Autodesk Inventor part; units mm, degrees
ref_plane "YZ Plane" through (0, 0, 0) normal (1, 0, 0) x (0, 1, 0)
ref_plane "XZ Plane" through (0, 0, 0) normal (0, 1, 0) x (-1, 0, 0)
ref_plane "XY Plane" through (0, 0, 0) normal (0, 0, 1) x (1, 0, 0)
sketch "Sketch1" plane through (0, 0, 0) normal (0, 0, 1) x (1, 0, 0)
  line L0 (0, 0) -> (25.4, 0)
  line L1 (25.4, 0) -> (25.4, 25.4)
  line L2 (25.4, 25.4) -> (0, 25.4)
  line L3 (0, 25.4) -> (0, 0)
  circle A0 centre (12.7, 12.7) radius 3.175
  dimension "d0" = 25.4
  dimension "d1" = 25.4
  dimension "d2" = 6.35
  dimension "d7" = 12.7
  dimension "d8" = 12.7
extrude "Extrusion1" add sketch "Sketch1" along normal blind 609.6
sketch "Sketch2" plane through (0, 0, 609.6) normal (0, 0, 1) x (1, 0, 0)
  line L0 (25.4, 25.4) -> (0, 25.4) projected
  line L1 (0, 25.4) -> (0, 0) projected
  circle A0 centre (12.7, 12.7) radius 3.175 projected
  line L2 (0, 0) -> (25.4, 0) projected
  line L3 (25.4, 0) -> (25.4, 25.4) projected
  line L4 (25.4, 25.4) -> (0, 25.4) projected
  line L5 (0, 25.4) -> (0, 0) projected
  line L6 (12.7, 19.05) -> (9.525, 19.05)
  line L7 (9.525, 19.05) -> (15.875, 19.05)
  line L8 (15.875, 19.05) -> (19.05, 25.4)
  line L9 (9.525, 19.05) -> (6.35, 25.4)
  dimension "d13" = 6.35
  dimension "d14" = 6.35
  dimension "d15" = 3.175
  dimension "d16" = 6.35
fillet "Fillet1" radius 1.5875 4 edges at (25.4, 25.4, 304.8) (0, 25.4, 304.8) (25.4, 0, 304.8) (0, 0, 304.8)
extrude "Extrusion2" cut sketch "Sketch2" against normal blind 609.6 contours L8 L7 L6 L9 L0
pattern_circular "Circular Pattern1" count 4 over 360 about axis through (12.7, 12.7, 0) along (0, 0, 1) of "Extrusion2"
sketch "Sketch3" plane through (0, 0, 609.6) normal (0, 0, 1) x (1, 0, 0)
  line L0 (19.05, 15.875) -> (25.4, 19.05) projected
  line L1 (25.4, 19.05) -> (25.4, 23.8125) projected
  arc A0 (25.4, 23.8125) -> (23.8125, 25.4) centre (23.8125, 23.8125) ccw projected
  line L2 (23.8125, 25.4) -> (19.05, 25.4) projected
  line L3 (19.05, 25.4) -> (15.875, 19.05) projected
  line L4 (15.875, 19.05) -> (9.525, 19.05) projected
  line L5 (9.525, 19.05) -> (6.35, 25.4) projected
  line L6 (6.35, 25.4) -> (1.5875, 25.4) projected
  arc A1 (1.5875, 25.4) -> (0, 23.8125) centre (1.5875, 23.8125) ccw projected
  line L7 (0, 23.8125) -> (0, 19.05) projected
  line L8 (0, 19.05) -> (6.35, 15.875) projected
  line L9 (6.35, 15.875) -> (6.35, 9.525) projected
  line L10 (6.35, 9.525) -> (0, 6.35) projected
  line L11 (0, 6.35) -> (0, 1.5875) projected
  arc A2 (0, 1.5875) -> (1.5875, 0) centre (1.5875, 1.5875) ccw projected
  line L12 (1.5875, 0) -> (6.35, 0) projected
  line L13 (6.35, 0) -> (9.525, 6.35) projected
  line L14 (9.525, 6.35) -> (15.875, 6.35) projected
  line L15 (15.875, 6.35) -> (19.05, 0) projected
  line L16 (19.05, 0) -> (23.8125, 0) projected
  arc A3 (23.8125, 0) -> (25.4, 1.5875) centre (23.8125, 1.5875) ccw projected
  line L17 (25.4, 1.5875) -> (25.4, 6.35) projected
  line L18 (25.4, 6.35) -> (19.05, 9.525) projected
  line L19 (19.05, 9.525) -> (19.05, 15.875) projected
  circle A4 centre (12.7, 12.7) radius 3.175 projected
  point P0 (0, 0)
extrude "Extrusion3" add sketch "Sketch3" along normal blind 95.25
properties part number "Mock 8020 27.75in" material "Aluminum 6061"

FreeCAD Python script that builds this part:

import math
import FreeCAD as App
import Part
import Sketcher
Q = App.Units.Quantity


def edges_at(feature, points):
    """Names of the edges that pass closest to the given points."""
    edges = feature.Shape.Edges
    near = lambda p: min(range(len(edges)), key=lambda i: edges[i].distToShape(Part.Vertex(*p))[0])
    return sorted({f"Edge{near(p) + 1}" for p in points})

doc = App.newDocument("Part")
body = doc.addObject("PartDesign::Body", "Body")

sketch1 = doc.addObject("Sketcher::SketchObject", "Sketch")
body.addObject(sketch1)
sketch1.AttachmentSupport = (doc.XY_Plane, [""])
sketch1.MapMode = "FlatFace"
sketch1.addGeometry([
    Part.LineSegment(App.Vector(0, 25.4, 0), App.Vector(0, 0, 0)),
    Part.LineSegment(App.Vector(0, 0, 0), App.Vector(25.4, 0, 0)),
    Part.LineSegment(App.Vector(25.4, 0, 0), App.Vector(25.4, 25.4, 0)),
    Part.LineSegment(App.Vector(25.4, 25.4, 0), App.Vector(0, 25.4, 0)),
    Part.Circle(App.Vector(12.7, 12.7, 0), App.Vector(0, 0, 1), 3.2),
], False)
sketch1.addConstraint([
    Sketcher.Constraint("Coincident", 0, 2, 1, 1),
    Sketcher.Constraint("Coincident", 1, 2, 2, 1),
    Sketcher.Constraint("Coincident", 2, 2, 3, 1),
    Sketcher.Constraint("Coincident", 3, 2, 0, 1),
    Sketcher.Constraint("Vertical", 0),
    Sketcher.Constraint("Horizontal", 1),
    Sketcher.Constraint("Vertical", 2),
    Sketcher.Constraint("Horizontal", 3),
    Sketcher.Constraint("Coincident", 0, 2, -1, 1),
    Sketcher.Constraint("Equal", 3, 0),
    Sketcher.Constraint("Diameter", 4, Q("0.25 in")),
    Sketcher.Constraint("DistanceX", 1, 1, 1, 2, Q("1 in")),
    Sketcher.Constraint("DistanceX", -1, 1, 4, 3, Q("0.5 in")),
    Sketcher.Constraint("DistanceY", -1, 1, 4, 3, Q("0.5 in")),
])
pad1 = doc.addObject("PartDesign::Pad", "Pad")
body.addObject(pad1)
pad1.Profile = sketch1
pad1.Length = Q("24 in")
doc.recompute()

fillet = doc.addObject("PartDesign::Fillet", "Fillet")
body.addObject(fillet)
fillet.Base = (pad1, edges_at(pad1, [
    (25.4, 25.4, 304.8),
    (0, 25.4, 304.8),
    (25.4, 0, 304.8),
    (0, 0, 304.8),
]))
fillet.Radius = Q("0.0625 in")

sketch2 = doc.addObject("Sketcher::SketchObject", "Sketch001")
body.addObject(sketch2)
sketch2.AttachmentSupport = (doc.XY_Plane, [""])
sketch2.MapMode = "FlatFace"
sketch2.AttachmentOffset = App.Placement(App.Vector(0, 0, 24 * 25.4), App.Rotation())
sketch2.addGeometry([
    Part.LineSegment(App.Vector(16, 19, 0), App.Vector(19, 25, 0)),
    Part.LineSegment(App.Vector(19, 25, 0), App.Vector(6, 25, 0)),
    Part.LineSegment(App.Vector(6, 25, 0), App.Vector(10, 19, 0)),
    Part.LineSegment(App.Vector(10, 19, 0), App.Vector(16, 19, 0)),
], False)
sketch2.addConstraint([
    Sketcher.Constraint("Coincident", 0, 2, 1, 1),
    Sketcher.Constraint("Coincident", 1, 2, 2, 1),
    Sketcher.Constraint("Coincident", 2, 2, 3, 1),
    Sketcher.Constraint("Coincident", 3, 2, 0, 1),
    Sketcher.Constraint("Horizontal", 1),
    Sketcher.Constraint("Horizontal", 3),
    Sketcher.Constraint("Equal", 0, 2),
    Sketcher.Constraint("DistanceX", 3, 1, 3, 2, Q("0.25 in")),
    Sketcher.Constraint("DistanceX", -1, 1, 1, 2, Q("0.25 in")),
    Sketcher.Constraint("DistanceY", 2, 2, 1, 2, Q("0.25 in")),
    Sketcher.Constraint("DistanceX", 1, 2, 1, 1, Q("0.5 in")),
    Sketcher.Constraint("DistanceY", -1, 1, 0, 2, Q("1 in")),
])
pocket1 = doc.addObject("PartDesign::Pocket", "Pocket")
body.addObject(pocket1)
pocket1.Profile = sketch2
pocket1.Length = Q("24 in")
doc.recompute()

datumline = doc.addObject("PartDesign::Line", "DatumLine")
body.addObject(datumline)
datumline.Placement = App.Placement(App.Vector(12.7, 12.7, 0), App.Rotation(App.Vector(0, 0, 1), App.Vector(0, 0, 1)))
polarpattern = doc.addObject("PartDesign::PolarPattern", "PolarPattern")
body.addObject(polarpattern)
polarpattern.Originals = [pocket1]
polarpattern.Axis = (datumline, [""])
polarpattern.Angle = 360
polarpattern.Occurrences = 4
body.Tip = polarpattern

sketch3 = doc.addObject("Sketcher::SketchObject", "Sketch002")
body.addObject(sketch3)
sketch3.AttachmentSupport = (doc.XY_Plane, [""])
sketch3.MapMode = "FlatFace"
sketch3.AttachmentOffset = App.Placement(App.Vector(0, 0, 24 * 25.4), App.Rotation())
sketch3.addGeometry([
    Part.LineSegment(App.Vector(19.1, 9.5, 0), App.Vector(19.1, 15.9, 0)),
    Part.LineSegment(App.Vector(19.1, 15.9, 0), App.Vector(25.4, 19.1, 0)),
    Part.LineSegment(App.Vector(25.4, 19.1, 0), App.Vector(25.4, 23.8, 0)),
    Part.ArcOfCircle(Part.Circle(App.Vector(23.8, 23.8, 0), App.Vector(0, 0, 1), 1.6), math.radians(0), math.radians(90)),
    Part.LineSegment(App.Vector(23.8, 25.4, 0), App.Vector(19.1, 25.4, 0)),
    Part.LineSegment(App.Vector(19.1, 25.4, 0), App.Vector(15.9, 19.1, 0)),
    Part.LineSegment(App.Vector(15.9, 19.1, 0), App.Vector(9.5, 19.1, 0)),
    Part.LineSegment(App.Vector(9.5, 19.1, 0), App.Vector(6.3, 25.4, 0)),
    Part.LineSegment(App.Vector(6.3, 25.4, 0), App.Vector(1.6, 25.4, 0)),
    Part.ArcOfCircle(Part.Circle(App.Vector(1.6, 23.8, 0), App.Vector(0, 0, 1), 1.6), math.radians(90), math.radians(180)),
    Part.LineSegment(App.Vector(0, 23.8, 0), App.Vector(0, 19.1, 0)),
    Part.LineSegment(App.Vector(0, 19.1, 0), App.Vector(6.3, 15.9, 0)),
    Part.LineSegment(App.Vector(6.3, 15.9, 0), App.Vector(6.3, 9.5, 0)),
    Part.LineSegment(App.Vector(6.3, 9.5, 0), App.Vector(0, 6.3, 0)),
    Part.LineSegment(App.Vector(0, 6.3, 0), App.Vector(0, 1.6, 0)),
    Part.ArcOfCircle(Part.Circle(App.Vector(1.6, 1.6, 0), App.Vector(0, 0, 1), 1.6), math.radians(180), math.radians(270)),
    Part.LineSegment(App.Vector(1.6, 0, 0), App.Vector(6.3, 0, 0)),
    Part.LineSegment(App.Vector(6.3, 0, 0), App.Vector(9.5, 6.3, 0)),
    Part.LineSegment(App.Vector(9.5, 6.3, 0), App.Vector(15.9, 6.3, 0)),
    Part.LineSegment(App.Vector(15.9, 6.3, 0), App.Vector(19.1, 0, 0)),
    Part.LineSegment(App.Vector(19.1, 0, 0), App.Vector(23.8, 0, 0)),
    Part.ArcOfCircle(Part.Circle(App.Vector(23.8, 1.6, 0), App.Vector(0, 0, 1), 1.6), math.radians(-90), math.radians(0)),
    Part.LineSegment(App.Vector(25.4, 1.6, 0), App.Vector(25.4, 6.3, 0)),
    Part.LineSegment(App.Vector(25.4, 6.3, 0), App.Vector(19.1, 9.5, 0)),
    Part.Circle(App.Vector(12.7, 12.7, 0), App.Vector(0, 0, 1), 3.2),
], False)
sketch3.addConstraint([
    Sketcher.Constraint("Coincident", 0, 2, 1, 1),
    Sketcher.Constraint("Coincident", 1, 2, 2, 1),
    Sketcher.Constraint("Tangent", 2, 2, 3, 1),
    Sketcher.Constraint("Tangent", 3, 2, 4, 1),
    Sketcher.Constraint("Coincident", 4, 2, 5, 1),
    Sketcher.Constraint("Coincident", 5, 2, 6, 1),
    Sketcher.Constraint("Coincident", 6, 2, 7, 1),
    Sketcher.Constraint("Coincident", 7, 2, 8, 1),
    Sketcher.Constraint("Tangent", 8, 2, 9, 1),
    Sketcher.Constraint("Tangent", 9, 2, 10, 1),
    Sketcher.Constraint("Coincident", 10, 2, 11, 1),
    Sketcher.Constraint("Coincident", 11, 2, 12, 1),
    Sketcher.Constraint("Coincident", 12, 2, 13, 1),
    Sketcher.Constraint("Coincident", 13, 2, 14, 1),
    Sketcher.Constraint("Tangent", 14, 2, 15, 1),
    Sketcher.Constraint("Tangent", 15, 2, 16, 1),
    Sketcher.Constraint("Coincident", 16, 2, 17, 1),
    Sketcher.Constraint("Coincident", 17, 2, 18, 1),
    Sketcher.Constraint("Coincident", 18, 2, 19, 1),
    Sketcher.Constraint("Coincident", 19, 2, 20, 1),
    Sketcher.Constraint("Tangent", 20, 2, 21, 1),
    Sketcher.Constraint("Tangent", 21, 2, 22, 1),
    Sketcher.Constraint("Coincident", 22, 2, 23, 1),
    Sketcher.Constraint("Coincident", 23, 2, 0, 1),
    Sketcher.Constraint("Vertical", 0),
    Sketcher.Constraint("Vertical", 2),
    Sketcher.Constraint("Horizontal", 4),
    Sketcher.Constraint("Horizontal", 6),
    Sketcher.Constraint("Horizontal", 8),
    Sketcher.Constraint("Vertical", 10),
    Sketcher.Constraint("Vertical", 12),
    Sketcher.Constraint("Vertical", 14),
    Sketcher.Constraint("Horizontal", 16),
    Sketcher.Constraint("Horizontal", 18),
    Sketcher.Constraint("Horizontal", 20),
    Sketcher.Constraint("Vertical", 22),
    Sketcher.Constraint("Equal", 3, 9),
    Sketcher.Constraint("Equal", 9, 15),
    Sketcher.Constraint("Equal", 15, 21),
    Sketcher.Constraint("PointOnObject", 9, 2, -2),
    Sketcher.Constraint("PointOnObject", 13, 2, -2),
    Sketcher.Constraint("PointOnObject", 15, 2, -1),
    Sketcher.Constraint("PointOnObject", 19, 2, -1),
    Sketcher.Constraint("Perpendicular", 1, 7),
    Sketcher.Constraint("Perpendicular", 5, 11),
    Sketcher.Constraint("Perpendicular", 7, 13),
    Sketcher.Constraint("Perpendicular", 11, 17),
    Sketcher.Constraint("Perpendicular", 13, 19),
    Sketcher.Constraint("Perpendicular", 17, 23),
    Sketcher.Constraint("Horizontal", 3, 3, 9, 3),
    Sketcher.Constraint("Horizontal", 1, 2, 5, 2),
    Sketcher.Constraint("Horizontal", 6, 2, 10, 2),
    Sketcher.Constraint("Horizontal", 0, 2, 11, 2),
    Sketcher.Constraint("Horizontal", 13, 2, 17, 2),
    Sketcher.Constraint("Horizontal", 18, 2, 22, 2),
    Sketcher.Constraint("Horizontal", 12, 2, 23, 2),
    Sketcher.Constraint("Vertical", 3, 3, 21, 3),
    Sketcher.Constraint("Vertical", 0, 2, 4, 2),
    Sketcher.Constraint("Vertical", 7, 2, 11, 2),
    Sketcher.Constraint("Vertical", 12, 2, 16, 2),
    Sketcher.Constraint("Vertical", 6, 2, 17, 2),
    Sketcher.Constraint("Vertical", 5, 2, 18, 2),
    Sketcher.Constraint("Equal", 18, 0),
    Sketcher.Constraint("Equal", 20, 2),
    Sketcher.Constraint("Diameter", 24, Q("0.25 in")),
    Sketcher.Constraint("DistanceX", -1, 1, 1, 2, Q("1 in")),
    Sketcher.Constraint("Radius", 3, Q("0.0625 in")),
    Sketcher.Constraint("DistanceX", 6, 2, 6, 1, Q("0.25 in")),
    Sketcher.Constraint("DistanceX", -1, 1, 24, 3, Q("0.5 in")),
    Sketcher.Constraint("DistanceY", -1, 1, 24, 3, Q("0.5 in")),
    Sketcher.Constraint("DistanceX", 7, 2, 4, 2, Q("0.5 in")),
])
pad2 = doc.addObject("PartDesign::Pad", "Pad001")
body.addObject(pad2)
pad2.Profile = sketch3
pad2.Length = Q("3.75 in")

doc.recompute()
